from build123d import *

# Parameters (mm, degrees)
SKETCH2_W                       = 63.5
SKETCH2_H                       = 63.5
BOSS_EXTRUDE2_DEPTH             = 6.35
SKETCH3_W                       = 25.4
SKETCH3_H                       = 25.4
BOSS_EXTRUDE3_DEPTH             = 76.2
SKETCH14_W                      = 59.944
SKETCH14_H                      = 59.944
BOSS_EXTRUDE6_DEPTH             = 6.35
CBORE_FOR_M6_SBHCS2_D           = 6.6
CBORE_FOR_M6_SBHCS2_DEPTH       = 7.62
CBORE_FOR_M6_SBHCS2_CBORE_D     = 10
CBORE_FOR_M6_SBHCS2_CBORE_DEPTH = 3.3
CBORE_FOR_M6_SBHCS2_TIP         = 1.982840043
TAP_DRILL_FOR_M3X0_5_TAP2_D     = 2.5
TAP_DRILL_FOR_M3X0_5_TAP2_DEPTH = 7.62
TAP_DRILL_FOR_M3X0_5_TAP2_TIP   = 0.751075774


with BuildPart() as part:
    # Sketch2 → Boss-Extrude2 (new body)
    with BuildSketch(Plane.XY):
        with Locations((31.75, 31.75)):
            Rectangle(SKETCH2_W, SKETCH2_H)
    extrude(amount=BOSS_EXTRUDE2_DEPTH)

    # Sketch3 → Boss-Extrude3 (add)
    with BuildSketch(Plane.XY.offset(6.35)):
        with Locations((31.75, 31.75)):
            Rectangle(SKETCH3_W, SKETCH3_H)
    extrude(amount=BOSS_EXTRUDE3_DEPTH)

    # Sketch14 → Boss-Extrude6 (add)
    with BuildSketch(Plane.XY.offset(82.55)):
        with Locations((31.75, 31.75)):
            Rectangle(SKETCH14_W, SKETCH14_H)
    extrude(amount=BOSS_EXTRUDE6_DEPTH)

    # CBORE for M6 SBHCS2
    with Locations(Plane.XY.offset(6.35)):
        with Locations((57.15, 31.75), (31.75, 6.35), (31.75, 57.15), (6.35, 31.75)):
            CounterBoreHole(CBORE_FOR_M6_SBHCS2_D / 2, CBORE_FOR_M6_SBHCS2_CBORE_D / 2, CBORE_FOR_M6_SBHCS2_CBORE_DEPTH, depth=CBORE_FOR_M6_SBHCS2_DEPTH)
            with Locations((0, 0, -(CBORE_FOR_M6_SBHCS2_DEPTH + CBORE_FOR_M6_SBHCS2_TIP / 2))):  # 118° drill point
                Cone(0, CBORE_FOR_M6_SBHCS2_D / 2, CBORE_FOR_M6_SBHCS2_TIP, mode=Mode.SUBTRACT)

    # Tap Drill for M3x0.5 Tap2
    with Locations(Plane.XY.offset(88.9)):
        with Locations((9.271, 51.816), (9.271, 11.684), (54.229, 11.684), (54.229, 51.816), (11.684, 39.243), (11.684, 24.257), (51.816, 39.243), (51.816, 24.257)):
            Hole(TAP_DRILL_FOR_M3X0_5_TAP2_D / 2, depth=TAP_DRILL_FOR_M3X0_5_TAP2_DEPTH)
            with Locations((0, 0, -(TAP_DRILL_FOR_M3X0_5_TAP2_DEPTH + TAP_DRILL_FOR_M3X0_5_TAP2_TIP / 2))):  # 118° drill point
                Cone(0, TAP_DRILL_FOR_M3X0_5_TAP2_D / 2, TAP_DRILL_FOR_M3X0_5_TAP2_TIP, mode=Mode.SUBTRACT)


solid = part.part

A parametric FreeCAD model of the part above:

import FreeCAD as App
import Part
import Sketcher
from FreeCAD import Vector
Q = App.Units.Quantity


def add_polygon(sketch, points):
    """Adds a closed chain of lines whose ends are joined by coincident constraints."""
    first, n = sketch.GeometryCount, len(points)
    for a, b in zip(points, points[1:] + points[:1]):
        sketch.addGeometry(Part.LineSegment(App.Vector(*a, 0), App.Vector(*b, 0)), False)
    for i in range(n):
        sketch.addConstraint(Sketcher.Constraint("Coincident", first + i, 2, first + (i + 1) % n, 1))

doc = App.newDocument("Part")
body = doc.addObject("PartDesign::Body", "Body")

sketch1 = body.newObject("Sketcher::SketchObject", "Sketch")
sketch1.AttachmentSupport = (doc.getObject("XY_Plane"), [""])
sketch1.MapMode = "FlatFace"
add_polygon(sketch1, [(0, 64), (0, 0), (64, 0), (64, 64)])
sketch1.addConstraint(Sketcher.Constraint("Vertical", 0))
sketch1.addConstraint(Sketcher.Constraint("Horizontal", 1))
sketch1.addConstraint(Sketcher.Constraint("Vertical", 2))
sketch1.addConstraint(Sketcher.Constraint("Horizontal", 3))
sketch1.addConstraint(Sketcher.Constraint("Coincident", 0, 2, -1, 1))
sketch1.addConstraint(Sketcher.Constraint("Equal", 3, 0))
sketch1.addConstraint(Sketcher.Constraint("DistanceX", 1, 1, 1, 2, Q("2.5 in")))
pad1 = body.newObject("PartDesign::Pad", "Pad")
pad1.Profile = sketch1
pad1.Length = Q("0.25 in")

sketch2 = body.newObject("Sketcher::SketchObject", "Sketch001")
sketch2.AttachmentSupport = (doc.getObject("XY_Plane"), [""])
sketch2.MapMode = "FlatFace"
sketch2.AttachmentOffset = App.Placement(Vector(0, 0, 0.25 * 25.4), App.Rotation())
add_polygon(sketch2, [(19, 44), (19, 19), (44, 19), (44, 44)])
sketch2.addConstraint(Sketcher.Constraint("Vertical", 0))
sketch2.addConstraint(Sketcher.Constraint("Horizontal", 1))
sketch2.addConstraint(Sketcher.Constraint("Vertical", 2))
sketch2.addConstraint(Sketcher.Constraint("Horizontal", 3))
sketch2.addConstraint(Sketcher.Constraint("Equal", 3, 0))
sketch2.addConstraint(Sketcher.Constraint("DistanceX", 1, 1, 1, 2, Q("1 in")))
sketch2.addConstraint(Sketcher.Constraint("DistanceX", -1, 1, 0, 2, Q("0.75 in")))
sketch2.addConstraint(Sketcher.Constraint("DistanceY", -1, 1, 0, 2, Q("0.75 in")))
pad2 = body.newObject("PartDesign::Pad", "Pad001")
pad2.Profile = sketch2
pad2.Length = Q("3 in")

sketch3 = body.newObject("Sketcher::SketchObject", "Sketch002")
sketch3.AttachmentSupport = (doc.getObject("XY_Plane"), [""])
sketch3.MapMode = "FlatFace"
sketch3.AttachmentOffset = App.Placement(Vector(0, 0, 3.25 * 25.4), App.Rotation())
add_polygon(sketch3, [(2, 62), (2, 2), (62, 2), (62, 62)])
sketch3.addConstraint(Sketcher.Constraint("Vertical", 0))
sketch3.addConstraint(Sketcher.Constraint("Horizontal", 1))
sketch3.addConstraint(Sketcher.Constraint("Vertical", 2))
sketch3.addConstraint(Sketcher.Constraint("Horizontal", 3))
sketch3.addConstraint(Sketcher.Constraint("Equal", 3, 0))
sketch3.addConstraint(Sketcher.Constraint("DistanceX", 1, 1, 1, 2, Q("2.36 in")))
sketch3.addConstraint(Sketcher.Constraint("DistanceX", -1, 1, 0, 2, Q("0.07 in")))
sketch3.addConstraint(Sketcher.Constraint("DistanceY", -1, 1, 0, 2, Q("0.07 in")))
pad3 = body.newObject("PartDesign::Pad", "Pad002")
pad3.Profile = sketch3
pad3.Length = Q("0.25 in")

sketch4 = body.newObject("Sketcher::SketchObject", "Sketch003")
sketch4.AttachmentSupport = (doc.getObject("XY_Plane"), [""])
sketch4.MapMode = "FlatFace"
sketch4.AttachmentOffset = App.Placement(Vector(0, 0, 0.25 * 25.4), App.Rotation())
sketch4.addGeometry(Part.Circle(Vector(57.1, 31.8, 0), Vector(0, 0, 1), 3.3), False)
sketch4.addGeometry(Part.Circle(Vector(31.8, 6.3, 0), Vector(0, 0, 1), 3.3), False)
sketch4.addGeometry(Part.Circle(Vector(31.8, 57.1, 0), Vector(0, 0, 1), 3.3), False)
sketch4.addGeometry(Part.Circle(Vector(6.3, 31.8, 0), Vector(0, 0, 1), 3.3), False)
sketch4.addConstraint(Sketcher.Constraint("Equal", 0, 1))
sketch4.addConstraint(Sketcher.Constraint("Equal", 1, 2))
sketch4.addConstraint(Sketcher.Constraint("Equal", 2, 3))
sketch4.addConstraint(Sketcher.Constraint("Horizontal", 0, 3, 3, 3))
sketch4.addConstraint(Sketcher.Constraint("Vertical", 1, 3, 2, 3))
sketch4.addConstraint(Sketcher.Constraint("DistanceX", 1, 3, 0, 3, Q("1 in")))
sketch4.addConstraint(Sketcher.Constraint("DistanceY", 1, 3, 0, 3, Q("1 in")))
sketch4.addConstraint(Sketcher.Constraint("DistanceY", 0, 3, 2, 3, Q("1 in")))
sketch4.addConstraint(Sketcher.Constraint("DistanceX", 3, 3, 1, 3, Q("1 in")))
sketch4.addConstraint(Sketcher.Constraint("Diameter", 0, 6.6))
sketch4.addConstraint(Sketcher.Constraint("DistanceX", -1, 1, 0, 3, Q("2.25 in")))
sketch4.addConstraint(Sketcher.Constraint("DistanceY", -1, 1, 0, 3, Q("1.25 in")))
doc.recompute()
hole = body.newObject("PartDesign::Hole", "Hole")
hole.Profile = sketch4
hole.ThreadType = "None"
hole.Diameter = 6.6
hole.DepthType = "Dimension"
hole.Depth = Q("0.3 in")
hole.DrillPoint = "Angled"
hole.DrillPointAngle = 118
hole.HoleCutType = "Counterbore"
hole.HoleCutDiameter = 10
hole.HoleCutDepth = 3.3

sketch5 = body.newObject("Sketcher::SketchObject", "Sketch004")
sketch5.AttachmentSupport = (doc.getObject("XY_Plane"), [""])
sketch5.MapMode = "FlatFace"
sketch5.AttachmentOffset = App.Placement(Vector(0, 0, 3.5 * 25.4), App.Rotation())
sketch5.addGeometry(Part.Circle(Vector(9.3, 51.8, 0), Vector(0, 0, 1), 1.2), False)
sketch5.addGeometry(Part.Circle(Vector(9.3, 11.7, 0), Vector(0, 0, 1), 1.2), False)
sketch5.addGeometry(Part.Circle(Vector(54.2, 11.7, 0), Vector(0, 0, 1), 1.2), False)
sketch5.addGeometry(Part.Circle(Vector(54.2, 51.8, 0), Vector(0, 0, 1), 1.2), False)
sketch5.addGeometry(Part.Circle(Vector(11.7, 39.2, 0), Vector(0, 0, 1), 1.2), False)
sketch5.addGeometry(Part.Circle(Vector(11.7, 24.3, 0), Vector(0, 0, 1), 1.2), False)
sketch5.addGeometry(Part.Circle(Vector(51.8, 39.2, 0), Vector(0, 0, 1), 1.2), False)
sketch5.addGeometry(Part.Circle(Vector(51.8, 24.3, 0), Vector(0, 0, 1), 1.2), False)
sketch5.addConstraint(Sketcher.Constraint("Equal", 0, 1))
sketch5.addConstraint(Sketcher.Constraint("Equal", 1, 2))
sketch5.addConstraint(Sketcher.Constraint("Equal", 2, 3))
sketch5.addConstraint(Sketcher.Constraint("Equal", 3, 4))
sketch5.addConstraint(Sketcher.Constraint("Equal", 4, 5))
sketch5.addConstraint(Sketcher.Constraint("Equal", 5, 6))
sketch5.addConstraint(Sketcher.Constraint("Equal", 6, 7))
sketch5.addConstraint(Sketcher.Constraint("Horizontal", 1, 3, 2, 3))
sketch5.addConstraint(Sketcher.Constraint("Horizontal", 0, 3, 3, 3))
sketch5.addConstraint(Sketcher.Constraint("Horizontal", 4, 3, 6, 3))
sketch5.addConstraint(Sketcher.Constraint("Horizontal", 5, 3, 7, 3))
sketch5.addConstraint(Sketcher.Constraint("Vertical", 0, 3, 1, 3))
sketch5.addConstraint(Sketcher.Constraint("Vertical", 2, 3, 3, 3))
sketch5.addConstraint(Sketcher.Constraint("Vertical", 4, 3, 5, 3))
sketch5.addConstraint(Sketcher.Constraint("Vertical", 6, 3, 7, 3))
sketch5.addConstraint(Sketcher.Constraint("Diameter", 0, 2.5))
sketch5.addConstraint(Sketcher.Constraint("DistanceY", -1, 1, 0, 3, Q("2.04 in")))
sketch5.addConstraint(Sketcher.Constraint("DistanceY", -1, 1, 1, 3, Q("0.46 in")))
sketch5.addConstraint(Sketcher.Constraint("DistanceX", -1, 1, 4, 3, Q("0.46 in")))
sketch5.addConstraint(Sketcher.Constraint("DistanceX", -1, 1, 6, 3, Q("2.04 in")))
sketch5.addConstraint(Sketcher.Constraint("DistanceX", 1, 3, 2, 3, Q("1.77 in")))
sketch5.addConstraint(Sketcher.Constraint("DistanceY", 5, 3, 4, 3, Q("0.59 in")))
sketch5.addConstraint(Sketcher.Constraint("DistanceX", -1, 1, 0, 3, Q("0.365 in")))
sketch5.addConstraint(Sketcher.Constraint("DistanceY", -1, 1, 4, 3, Q("1.545 in")))
doc.recompute()
hole2 = body.newObject("PartDesign::Hole", "Hole001")
hole2.Profile = sketch5
hole2.ThreadType = "None"
hole2.Diameter = 2.5
hole2.DepthType = "Dimension"
hole2.Depth = Q("0.3 in")
hole2.DrillPoint = "Angled"
hole2.DrillPointAngle = 118

doc.recompute()
